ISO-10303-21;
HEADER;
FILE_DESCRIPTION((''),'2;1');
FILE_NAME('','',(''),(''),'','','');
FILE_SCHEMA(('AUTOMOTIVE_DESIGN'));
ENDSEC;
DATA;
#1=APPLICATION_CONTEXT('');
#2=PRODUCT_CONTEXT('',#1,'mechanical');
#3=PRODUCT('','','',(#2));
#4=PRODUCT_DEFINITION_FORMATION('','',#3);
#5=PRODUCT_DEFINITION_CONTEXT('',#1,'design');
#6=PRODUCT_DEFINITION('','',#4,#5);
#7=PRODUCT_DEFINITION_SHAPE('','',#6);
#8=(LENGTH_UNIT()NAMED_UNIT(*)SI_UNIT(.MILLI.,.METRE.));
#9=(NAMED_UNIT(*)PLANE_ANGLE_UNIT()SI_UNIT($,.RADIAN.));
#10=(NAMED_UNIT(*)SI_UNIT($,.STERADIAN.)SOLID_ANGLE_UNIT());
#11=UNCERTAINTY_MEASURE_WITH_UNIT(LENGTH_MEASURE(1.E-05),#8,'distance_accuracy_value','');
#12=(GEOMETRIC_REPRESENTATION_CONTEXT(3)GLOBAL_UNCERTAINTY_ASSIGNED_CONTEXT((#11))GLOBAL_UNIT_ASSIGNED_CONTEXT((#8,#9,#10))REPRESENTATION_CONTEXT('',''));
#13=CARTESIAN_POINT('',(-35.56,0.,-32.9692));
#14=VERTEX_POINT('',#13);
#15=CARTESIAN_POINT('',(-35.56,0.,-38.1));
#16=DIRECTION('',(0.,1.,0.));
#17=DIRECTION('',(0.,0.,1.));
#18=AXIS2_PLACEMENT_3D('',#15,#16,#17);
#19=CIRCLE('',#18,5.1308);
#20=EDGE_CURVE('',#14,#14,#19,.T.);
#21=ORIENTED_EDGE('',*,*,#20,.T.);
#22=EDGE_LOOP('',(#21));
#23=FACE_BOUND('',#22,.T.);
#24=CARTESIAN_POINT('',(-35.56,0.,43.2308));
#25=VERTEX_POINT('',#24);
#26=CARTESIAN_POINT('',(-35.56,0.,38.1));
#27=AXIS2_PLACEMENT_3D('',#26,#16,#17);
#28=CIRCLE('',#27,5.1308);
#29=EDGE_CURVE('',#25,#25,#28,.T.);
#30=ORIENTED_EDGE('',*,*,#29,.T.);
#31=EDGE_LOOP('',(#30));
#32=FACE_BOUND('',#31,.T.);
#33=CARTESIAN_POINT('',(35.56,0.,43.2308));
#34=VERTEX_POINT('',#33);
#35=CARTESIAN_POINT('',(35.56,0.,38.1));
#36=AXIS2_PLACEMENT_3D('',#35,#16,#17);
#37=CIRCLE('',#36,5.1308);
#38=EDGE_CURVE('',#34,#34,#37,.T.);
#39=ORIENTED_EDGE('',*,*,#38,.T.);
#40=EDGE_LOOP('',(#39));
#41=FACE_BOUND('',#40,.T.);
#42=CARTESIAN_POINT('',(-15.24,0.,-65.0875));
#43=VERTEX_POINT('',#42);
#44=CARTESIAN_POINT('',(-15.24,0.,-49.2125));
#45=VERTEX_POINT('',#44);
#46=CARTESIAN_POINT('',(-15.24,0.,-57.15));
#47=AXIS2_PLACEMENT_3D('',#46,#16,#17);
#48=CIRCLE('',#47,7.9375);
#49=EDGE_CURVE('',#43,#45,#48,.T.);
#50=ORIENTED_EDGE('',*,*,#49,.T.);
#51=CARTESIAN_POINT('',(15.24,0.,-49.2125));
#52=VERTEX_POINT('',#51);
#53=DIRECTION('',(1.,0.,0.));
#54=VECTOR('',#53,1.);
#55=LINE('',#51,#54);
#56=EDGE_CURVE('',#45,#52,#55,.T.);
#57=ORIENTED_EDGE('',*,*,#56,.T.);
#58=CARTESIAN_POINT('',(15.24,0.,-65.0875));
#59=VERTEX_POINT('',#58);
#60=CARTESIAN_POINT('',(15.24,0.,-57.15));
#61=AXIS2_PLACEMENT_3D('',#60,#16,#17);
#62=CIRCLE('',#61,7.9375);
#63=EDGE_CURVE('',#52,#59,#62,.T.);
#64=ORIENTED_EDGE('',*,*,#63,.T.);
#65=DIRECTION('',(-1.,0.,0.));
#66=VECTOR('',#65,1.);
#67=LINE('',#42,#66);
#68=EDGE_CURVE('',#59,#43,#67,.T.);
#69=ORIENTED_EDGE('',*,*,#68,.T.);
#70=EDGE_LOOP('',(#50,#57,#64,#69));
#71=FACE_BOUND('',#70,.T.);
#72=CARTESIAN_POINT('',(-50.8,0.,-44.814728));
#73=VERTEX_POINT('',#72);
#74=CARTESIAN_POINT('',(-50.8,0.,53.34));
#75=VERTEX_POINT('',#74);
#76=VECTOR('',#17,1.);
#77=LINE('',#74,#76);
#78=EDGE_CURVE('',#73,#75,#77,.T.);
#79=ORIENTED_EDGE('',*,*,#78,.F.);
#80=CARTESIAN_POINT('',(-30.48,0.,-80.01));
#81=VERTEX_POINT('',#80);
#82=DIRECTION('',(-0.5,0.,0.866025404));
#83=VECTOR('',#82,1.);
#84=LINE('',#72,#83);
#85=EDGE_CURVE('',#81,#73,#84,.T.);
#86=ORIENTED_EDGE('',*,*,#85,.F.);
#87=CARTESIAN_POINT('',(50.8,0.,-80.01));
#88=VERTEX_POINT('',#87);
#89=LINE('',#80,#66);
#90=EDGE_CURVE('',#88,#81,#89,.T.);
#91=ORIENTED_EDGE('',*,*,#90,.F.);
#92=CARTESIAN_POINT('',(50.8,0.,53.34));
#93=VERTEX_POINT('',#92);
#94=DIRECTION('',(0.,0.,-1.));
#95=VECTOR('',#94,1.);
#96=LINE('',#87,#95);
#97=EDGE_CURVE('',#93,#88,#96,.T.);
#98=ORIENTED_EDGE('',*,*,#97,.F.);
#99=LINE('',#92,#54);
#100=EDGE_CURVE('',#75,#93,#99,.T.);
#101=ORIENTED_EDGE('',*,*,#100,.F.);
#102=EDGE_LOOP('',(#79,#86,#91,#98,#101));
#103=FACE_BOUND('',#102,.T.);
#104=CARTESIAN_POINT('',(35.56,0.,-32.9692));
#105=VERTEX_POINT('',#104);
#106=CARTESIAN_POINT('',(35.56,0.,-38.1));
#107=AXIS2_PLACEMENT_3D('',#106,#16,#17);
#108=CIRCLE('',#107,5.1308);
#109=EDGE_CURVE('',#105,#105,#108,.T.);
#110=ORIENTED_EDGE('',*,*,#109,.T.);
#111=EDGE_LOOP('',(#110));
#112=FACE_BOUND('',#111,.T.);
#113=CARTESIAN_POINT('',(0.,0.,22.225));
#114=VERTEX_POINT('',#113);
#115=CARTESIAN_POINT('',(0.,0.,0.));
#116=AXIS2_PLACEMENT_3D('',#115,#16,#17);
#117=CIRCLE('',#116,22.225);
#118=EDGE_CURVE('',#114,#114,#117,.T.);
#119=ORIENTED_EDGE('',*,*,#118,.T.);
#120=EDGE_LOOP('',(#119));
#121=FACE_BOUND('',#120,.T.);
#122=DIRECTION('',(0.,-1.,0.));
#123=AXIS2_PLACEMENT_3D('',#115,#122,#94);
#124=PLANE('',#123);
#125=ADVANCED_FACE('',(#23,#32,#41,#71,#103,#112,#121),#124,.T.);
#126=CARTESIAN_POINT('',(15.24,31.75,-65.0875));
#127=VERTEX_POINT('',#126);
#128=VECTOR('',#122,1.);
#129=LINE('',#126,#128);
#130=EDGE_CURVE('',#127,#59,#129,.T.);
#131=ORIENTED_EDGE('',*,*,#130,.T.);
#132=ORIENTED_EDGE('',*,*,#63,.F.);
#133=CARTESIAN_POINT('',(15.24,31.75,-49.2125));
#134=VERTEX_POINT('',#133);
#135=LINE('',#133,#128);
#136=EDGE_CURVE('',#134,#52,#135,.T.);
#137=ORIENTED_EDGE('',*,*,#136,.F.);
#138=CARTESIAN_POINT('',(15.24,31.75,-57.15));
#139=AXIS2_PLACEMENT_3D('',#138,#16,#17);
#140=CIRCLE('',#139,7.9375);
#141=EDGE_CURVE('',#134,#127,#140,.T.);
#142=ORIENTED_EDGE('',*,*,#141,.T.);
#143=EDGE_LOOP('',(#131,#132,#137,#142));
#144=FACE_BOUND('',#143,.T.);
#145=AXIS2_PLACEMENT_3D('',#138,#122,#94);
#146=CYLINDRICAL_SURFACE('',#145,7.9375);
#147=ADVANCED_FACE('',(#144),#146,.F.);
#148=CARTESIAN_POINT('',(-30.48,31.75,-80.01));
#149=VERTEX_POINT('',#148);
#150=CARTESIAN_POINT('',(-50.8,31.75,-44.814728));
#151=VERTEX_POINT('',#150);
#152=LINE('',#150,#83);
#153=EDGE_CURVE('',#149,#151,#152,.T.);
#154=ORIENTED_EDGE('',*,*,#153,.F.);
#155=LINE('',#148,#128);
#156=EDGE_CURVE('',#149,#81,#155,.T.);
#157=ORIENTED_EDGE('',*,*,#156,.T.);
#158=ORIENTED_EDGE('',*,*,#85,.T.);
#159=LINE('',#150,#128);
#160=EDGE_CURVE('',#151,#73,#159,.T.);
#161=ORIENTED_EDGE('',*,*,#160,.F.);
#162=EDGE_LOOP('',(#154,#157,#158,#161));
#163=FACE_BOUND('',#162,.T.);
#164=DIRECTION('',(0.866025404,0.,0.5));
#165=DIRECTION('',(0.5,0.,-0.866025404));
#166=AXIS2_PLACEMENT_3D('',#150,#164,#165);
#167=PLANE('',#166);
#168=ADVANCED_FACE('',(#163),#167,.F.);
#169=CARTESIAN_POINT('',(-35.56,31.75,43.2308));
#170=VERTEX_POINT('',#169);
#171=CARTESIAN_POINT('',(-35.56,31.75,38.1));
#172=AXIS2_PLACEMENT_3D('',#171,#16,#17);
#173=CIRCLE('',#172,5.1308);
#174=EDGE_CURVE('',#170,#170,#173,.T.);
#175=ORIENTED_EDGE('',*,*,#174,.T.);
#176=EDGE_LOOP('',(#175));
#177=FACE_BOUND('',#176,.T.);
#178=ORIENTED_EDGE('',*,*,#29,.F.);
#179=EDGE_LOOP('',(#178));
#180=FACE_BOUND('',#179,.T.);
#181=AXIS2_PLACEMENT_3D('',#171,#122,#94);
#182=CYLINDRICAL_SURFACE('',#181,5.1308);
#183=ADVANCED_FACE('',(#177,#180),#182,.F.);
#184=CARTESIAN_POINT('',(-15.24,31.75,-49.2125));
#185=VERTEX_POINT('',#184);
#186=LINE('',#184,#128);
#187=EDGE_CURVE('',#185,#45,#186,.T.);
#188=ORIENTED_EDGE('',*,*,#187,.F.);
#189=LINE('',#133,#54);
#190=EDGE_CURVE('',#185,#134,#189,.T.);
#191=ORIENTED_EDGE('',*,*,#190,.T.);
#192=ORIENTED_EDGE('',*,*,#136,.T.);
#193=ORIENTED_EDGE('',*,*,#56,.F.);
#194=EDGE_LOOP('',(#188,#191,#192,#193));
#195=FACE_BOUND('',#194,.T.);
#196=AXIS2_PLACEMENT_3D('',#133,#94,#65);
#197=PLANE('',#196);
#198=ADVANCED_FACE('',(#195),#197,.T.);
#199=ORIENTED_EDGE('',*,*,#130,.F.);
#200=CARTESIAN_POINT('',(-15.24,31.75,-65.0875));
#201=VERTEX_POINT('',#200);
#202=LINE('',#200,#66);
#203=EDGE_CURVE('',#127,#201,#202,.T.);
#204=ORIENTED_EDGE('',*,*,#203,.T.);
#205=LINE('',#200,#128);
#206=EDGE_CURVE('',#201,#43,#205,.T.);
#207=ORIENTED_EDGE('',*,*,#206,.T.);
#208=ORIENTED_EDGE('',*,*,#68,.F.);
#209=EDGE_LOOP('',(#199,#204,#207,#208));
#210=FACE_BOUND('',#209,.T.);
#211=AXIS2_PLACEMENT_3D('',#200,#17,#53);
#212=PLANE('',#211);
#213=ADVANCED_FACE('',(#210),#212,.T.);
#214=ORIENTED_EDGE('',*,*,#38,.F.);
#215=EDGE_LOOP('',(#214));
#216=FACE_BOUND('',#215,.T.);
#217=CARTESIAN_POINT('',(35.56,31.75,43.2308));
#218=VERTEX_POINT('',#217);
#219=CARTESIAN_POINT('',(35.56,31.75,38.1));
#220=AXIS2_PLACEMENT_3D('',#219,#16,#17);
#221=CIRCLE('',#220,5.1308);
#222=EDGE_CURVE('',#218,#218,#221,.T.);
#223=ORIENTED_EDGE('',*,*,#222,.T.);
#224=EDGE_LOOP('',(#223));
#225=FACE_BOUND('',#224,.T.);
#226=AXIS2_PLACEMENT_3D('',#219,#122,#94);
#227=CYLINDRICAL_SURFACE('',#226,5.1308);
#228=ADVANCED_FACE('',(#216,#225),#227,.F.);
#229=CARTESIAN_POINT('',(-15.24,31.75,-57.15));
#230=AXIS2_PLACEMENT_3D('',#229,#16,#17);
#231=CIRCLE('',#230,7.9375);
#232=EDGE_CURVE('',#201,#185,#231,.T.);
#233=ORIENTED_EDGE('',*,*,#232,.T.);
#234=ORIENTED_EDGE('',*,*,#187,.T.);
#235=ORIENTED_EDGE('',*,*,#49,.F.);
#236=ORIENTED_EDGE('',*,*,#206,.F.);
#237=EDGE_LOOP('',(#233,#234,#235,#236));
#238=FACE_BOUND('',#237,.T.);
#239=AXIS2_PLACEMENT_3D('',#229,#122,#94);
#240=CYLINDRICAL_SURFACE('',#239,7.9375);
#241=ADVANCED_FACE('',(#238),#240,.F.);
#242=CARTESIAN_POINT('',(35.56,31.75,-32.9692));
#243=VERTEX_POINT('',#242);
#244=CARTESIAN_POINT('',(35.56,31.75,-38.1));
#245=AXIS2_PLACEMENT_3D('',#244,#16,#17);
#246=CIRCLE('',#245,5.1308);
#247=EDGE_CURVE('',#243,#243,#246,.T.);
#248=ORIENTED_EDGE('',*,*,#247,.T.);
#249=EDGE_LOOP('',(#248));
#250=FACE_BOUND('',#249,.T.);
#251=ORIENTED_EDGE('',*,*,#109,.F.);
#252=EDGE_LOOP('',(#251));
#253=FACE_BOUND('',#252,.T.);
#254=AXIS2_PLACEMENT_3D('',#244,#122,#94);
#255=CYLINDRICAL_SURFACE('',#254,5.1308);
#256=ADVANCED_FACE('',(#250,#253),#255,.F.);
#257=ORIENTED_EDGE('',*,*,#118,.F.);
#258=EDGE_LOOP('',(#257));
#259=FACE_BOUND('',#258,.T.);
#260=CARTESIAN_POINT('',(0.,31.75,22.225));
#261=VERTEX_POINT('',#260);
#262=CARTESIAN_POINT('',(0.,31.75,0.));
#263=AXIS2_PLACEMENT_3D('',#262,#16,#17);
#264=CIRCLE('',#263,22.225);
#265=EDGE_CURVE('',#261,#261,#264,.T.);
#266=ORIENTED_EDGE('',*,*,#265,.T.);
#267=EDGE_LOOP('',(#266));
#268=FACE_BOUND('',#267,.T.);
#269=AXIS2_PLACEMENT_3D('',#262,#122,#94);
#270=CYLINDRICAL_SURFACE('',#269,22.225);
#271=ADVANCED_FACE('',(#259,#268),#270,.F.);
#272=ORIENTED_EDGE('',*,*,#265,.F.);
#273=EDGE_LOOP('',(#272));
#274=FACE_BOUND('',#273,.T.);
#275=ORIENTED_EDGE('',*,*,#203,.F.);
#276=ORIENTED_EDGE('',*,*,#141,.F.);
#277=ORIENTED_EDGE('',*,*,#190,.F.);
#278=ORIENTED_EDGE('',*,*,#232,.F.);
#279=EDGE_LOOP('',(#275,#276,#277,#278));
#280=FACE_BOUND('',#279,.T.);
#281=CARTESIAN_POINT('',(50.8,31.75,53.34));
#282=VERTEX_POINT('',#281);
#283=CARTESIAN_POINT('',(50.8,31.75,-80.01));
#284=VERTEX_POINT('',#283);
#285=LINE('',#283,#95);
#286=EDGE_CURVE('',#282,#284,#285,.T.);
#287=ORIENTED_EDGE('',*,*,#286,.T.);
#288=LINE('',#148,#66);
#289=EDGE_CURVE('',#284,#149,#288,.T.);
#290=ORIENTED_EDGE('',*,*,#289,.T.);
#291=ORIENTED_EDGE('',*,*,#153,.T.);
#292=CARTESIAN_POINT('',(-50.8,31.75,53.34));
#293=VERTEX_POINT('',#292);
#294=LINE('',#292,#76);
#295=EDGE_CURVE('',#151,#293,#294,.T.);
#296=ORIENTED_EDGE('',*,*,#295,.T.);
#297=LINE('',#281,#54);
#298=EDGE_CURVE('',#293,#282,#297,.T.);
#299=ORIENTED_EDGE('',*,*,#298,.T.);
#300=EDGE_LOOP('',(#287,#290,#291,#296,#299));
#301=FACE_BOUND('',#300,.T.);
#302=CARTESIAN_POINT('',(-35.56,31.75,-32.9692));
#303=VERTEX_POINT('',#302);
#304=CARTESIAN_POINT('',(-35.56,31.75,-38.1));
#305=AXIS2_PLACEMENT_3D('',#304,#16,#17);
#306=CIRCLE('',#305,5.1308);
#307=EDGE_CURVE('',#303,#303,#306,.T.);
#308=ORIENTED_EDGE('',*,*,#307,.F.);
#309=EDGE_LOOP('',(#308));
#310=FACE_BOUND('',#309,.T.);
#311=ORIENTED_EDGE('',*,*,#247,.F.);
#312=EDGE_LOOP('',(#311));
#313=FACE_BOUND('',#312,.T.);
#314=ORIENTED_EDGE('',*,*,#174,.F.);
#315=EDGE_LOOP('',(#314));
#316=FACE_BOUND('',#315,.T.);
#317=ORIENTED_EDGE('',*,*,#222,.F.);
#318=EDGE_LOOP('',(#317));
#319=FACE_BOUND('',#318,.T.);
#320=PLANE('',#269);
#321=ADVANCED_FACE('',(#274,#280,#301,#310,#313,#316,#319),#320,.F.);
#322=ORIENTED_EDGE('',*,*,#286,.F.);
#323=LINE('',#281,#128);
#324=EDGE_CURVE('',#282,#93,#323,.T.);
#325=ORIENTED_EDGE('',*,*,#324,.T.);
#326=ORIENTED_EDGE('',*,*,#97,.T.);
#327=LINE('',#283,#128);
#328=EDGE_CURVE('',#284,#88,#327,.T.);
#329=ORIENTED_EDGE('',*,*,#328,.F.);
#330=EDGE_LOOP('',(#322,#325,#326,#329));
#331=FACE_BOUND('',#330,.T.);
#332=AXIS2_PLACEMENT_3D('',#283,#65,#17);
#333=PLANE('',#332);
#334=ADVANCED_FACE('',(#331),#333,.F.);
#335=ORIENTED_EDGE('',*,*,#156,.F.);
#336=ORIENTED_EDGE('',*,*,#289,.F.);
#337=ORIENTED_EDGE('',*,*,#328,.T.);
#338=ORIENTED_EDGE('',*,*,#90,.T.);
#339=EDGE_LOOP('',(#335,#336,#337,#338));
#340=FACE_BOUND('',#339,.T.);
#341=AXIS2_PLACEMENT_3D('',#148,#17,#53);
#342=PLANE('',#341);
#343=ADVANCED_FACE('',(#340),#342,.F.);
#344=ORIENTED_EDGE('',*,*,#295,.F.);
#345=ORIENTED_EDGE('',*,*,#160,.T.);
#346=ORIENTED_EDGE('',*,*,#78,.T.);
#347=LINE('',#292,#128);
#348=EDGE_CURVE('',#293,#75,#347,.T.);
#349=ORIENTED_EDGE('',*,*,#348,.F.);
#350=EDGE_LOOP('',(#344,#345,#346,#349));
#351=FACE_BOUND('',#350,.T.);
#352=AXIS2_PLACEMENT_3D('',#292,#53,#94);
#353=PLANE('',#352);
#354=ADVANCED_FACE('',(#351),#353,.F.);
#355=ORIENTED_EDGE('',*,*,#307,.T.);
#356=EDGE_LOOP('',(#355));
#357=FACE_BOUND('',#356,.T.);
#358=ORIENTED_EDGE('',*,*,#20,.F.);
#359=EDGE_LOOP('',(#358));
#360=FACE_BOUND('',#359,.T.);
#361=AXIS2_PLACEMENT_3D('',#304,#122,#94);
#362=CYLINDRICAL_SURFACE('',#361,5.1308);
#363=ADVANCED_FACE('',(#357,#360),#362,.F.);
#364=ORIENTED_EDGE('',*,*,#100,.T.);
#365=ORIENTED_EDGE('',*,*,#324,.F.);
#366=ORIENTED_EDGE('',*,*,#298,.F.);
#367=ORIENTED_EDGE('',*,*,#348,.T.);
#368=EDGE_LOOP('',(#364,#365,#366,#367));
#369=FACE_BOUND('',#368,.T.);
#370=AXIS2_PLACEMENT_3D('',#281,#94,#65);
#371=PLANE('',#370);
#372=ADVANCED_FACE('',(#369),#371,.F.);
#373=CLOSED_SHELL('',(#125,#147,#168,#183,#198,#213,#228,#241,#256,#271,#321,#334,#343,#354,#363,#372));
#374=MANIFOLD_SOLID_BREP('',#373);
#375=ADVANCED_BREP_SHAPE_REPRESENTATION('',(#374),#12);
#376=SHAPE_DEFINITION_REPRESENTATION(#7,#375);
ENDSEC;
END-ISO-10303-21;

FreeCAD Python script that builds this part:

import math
import FreeCAD as App
import Part
import Sketcher
Q = App.Units.Quantity

doc = App.newDocument("Part")
params = doc.addObject("Spreadsheet::Sheet", "Params")
for row, (alias, value) in enumerate([
    ("sketch1_diameter", "1.75 in"),
    ("sketch1_width", "4 in"),
    ("sketch1_diameter2", "0.404 in"),
    ("sketch1_width2", "3.2 in"),
    ("sketch1_width3", "1.2 in"),
    ("pad1_length", "1.25 in"),
], start=1):
    params.set(f"A{row}", alias)
    params.set(f"B{row}", "=" + value)
    params.setAlias(f"B{row}", alias)

body = doc.addObject("PartDesign::Body", "Body")

# Sketch on XZ plane
sketch1 = body.newObject("Sketcher::SketchObject", "Sketch")
sketch1.AttachmentSupport = (doc.getObject("XZ_Plane"), [""])
sketch1.MapMode = "FlatFace"
sketch1.addGeometry(Part.LineSegment(App.Vector(51, -80, 0), App.Vector(-30, -80, 0)), False)
sketch1.addGeometry(Part.LineSegment(App.Vector(-30, -80, 0), App.Vector(-51, -45, 0)), False)
sketch1.addGeometry(Part.LineSegment(App.Vector(-51, -45, 0), App.Vector(-51, 53, 0)), False)
sketch1.addGeometry(Part.LineSegment(App.Vector(-51, 53, 0), App.Vector(51, 53, 0)), False)
sketch1.addGeometry(Part.LineSegment(App.Vector(51, 53, 0), App.Vector(51, -80, 0)), False)
sketch1.addGeometry(Part.Circle(App.Vector(36, 38, 0), App.Vector(0, 0, 1), 5), False)
sketch1.addGeometry(Part.Circle(App.Vector(0, 0, 0), App.Vector(0, 0, 1), 22), False)
sketch1.addGeometry(Part.Circle(App.Vector(-36, 38, 0), App.Vector(0, 0, 1), 5), False)
sketch1.addGeometry(Part.Circle(App.Vector(36, -38, 0), App.Vector(0, 0, 1), 5), False)
sketch1.addGeometry(Part.LineSegment(App.Vector(-15, -65, 0), App.Vector(15, -65, 0)), False)
sketch1.addGeometry(Part.ArcOfCircle(Part.Circle(App.Vector(15, -57, 0), App.Vector(0, 0, 1), 8), math.radians(-90), math.radians(90)), False)
sketch1.addGeometry(Part.LineSegment(App.Vector(15, -49, 0), App.Vector(-15, -49, 0)), False)
sketch1.addGeometry(Part.ArcOfCircle(Part.Circle(App.Vector(-15, -57, 0), App.Vector(0, 0, 1), 8), math.radians(90), math.radians(270)), False)
sketch1.addGeometry(Part.Circle(App.Vector(-36, -38, 0), App.Vector(0, 0, 1), 5), False)
sketch1.addConstraint(Sketcher.Constraint("Coincident", 0, 2, 1, 1))
sketch1.addConstraint(Sketcher.Constraint("Coincident", 1, 2, 2, 1))
sketch1.addConstraint(Sketcher.Constraint("Coincident", 2, 2, 3, 1))
sketch1.addConstraint(Sketcher.Constraint("Coincident", 3, 2, 4, 1))
sketch1.addConstraint(Sketcher.Constraint("Coincident", 4, 2, 0, 1))
sketch1.addConstraint(Sketcher.Constraint("Tangent", 9, 2, 10, 1))
sketch1.addConstraint(Sketcher.Constraint("Tangent", 10, 2, 11, 1))
sketch1.addConstraint(Sketcher.Constraint("Tangent", 11, 2, 12, 1))
sketch1.addConstraint(Sketcher.Constraint("Tangent", 12, 2, 9, 1))
sketch1.addConstraint(Sketcher.Constraint("Horizontal", 0))
sketch1.addConstraint(Sketcher.Constraint("Vertical", 2))
sketch1.addConstraint(Sketcher.Constraint("Horizontal", 3))
sketch1.addConstraint(Sketcher.Constraint("Vertical", 4))
sketch1.addConstraint(Sketcher.Constraint("Horizontal", 9))
sketch1.addConstraint(Sketcher.Constraint("Horizontal", 11))
sketch1.addConstraint(Sketcher.Constraint("Coincident", 6, 3, -1, 1))
sketch1.addConstraint(Sketcher.Constraint("Equal", 5, 7))
sketch1.addConstraint(Sketcher.Constraint("Equal", 7, 8))
sketch1.addConstraint(Sketcher.Constraint("Equal", 8, 13))
sketch1.addConstraint(Sketcher.Constraint("Symmetric", 7, 3, 8, 3, -1, 1))
sketch1.addConstraint(Sketcher.Constraint("Symmetric", 5, 3, 13, 3, -1, 1))
sketch1.addConstraint(Sketcher.Constraint("Symmetric", 5, 3, 7, 3, -2))
sketch1.addConstraint(Sketcher.Constraint("Diameter", 6, Q("1.75 in")))
sketch1.addConstraint(Sketcher.Constraint("DistanceX", 3, 1, 3, 2, Q("4 in")))
sketch1.addConstraint(Sketcher.Constraint("Diameter", 5, Q("0.404 in")))
sketch1.addConstraint(Sketcher.Constraint("DistanceX", 0, 2, 0, 1, Q("3.2 in")))
sketch1.addConstraint(Sketcher.Constraint("DistanceX", 9, 1, 9, 2, Q("1.2 in")))
sketch1.addConstraint(Sketcher.Constraint("DistanceX", 1, 2, -1, 1, Q("2 in")))
sketch1.addConstraint(Sketcher.Constraint("Angle", 1, Q("120 deg")))
sketch1.addConstraint(Sketcher.Constraint("Radius", 10, Q("0.3125 in")))
sketch1.addConstraint(Sketcher.Constraint("DistanceY", 8, 3, 5, 3, Q("3 in")))
sketch1.addConstraint(Sketcher.Constraint("DistanceX", 7, 3, 10, 3, Q("2 in")))
sketch1.addConstraint(Sketcher.Constraint("DistanceX", 12, 3, 8, 3, Q("2 in")))
sketch1.addConstraint(Sketcher.Constraint("DistanceY", 4, 2, 4, 1, Q("5.25 in")))
sketch1.addConstraint(Sketcher.Constraint("DistanceY", -1, 1, 2, 2, Q("2.1 in")))
sketch1.addConstraint(Sketcher.Constraint("DistanceY", 0, 2, 12, 3, Q("0.9 in")))
sketch1.setExpression("Constraints[22]", "Params.sketch1_diameter")
sketch1.setExpression("Constraints[23]", "Params.sketch1_width")
sketch1.setExpression("Constraints[24]", "Params.sketch1_diameter2")
sketch1.setExpression("Constraints[25]", "Params.sketch1_width2")
sketch1.setExpression("Constraints[26]", "Params.sketch1_width3")
pad1 = body.newObject("PartDesign::Pad", "Pad")
pad1.Profile = sketch1
pad1.setExpression("Length", "Params.pad1_length")
pad1.Reversed = True

doc.recompute()
